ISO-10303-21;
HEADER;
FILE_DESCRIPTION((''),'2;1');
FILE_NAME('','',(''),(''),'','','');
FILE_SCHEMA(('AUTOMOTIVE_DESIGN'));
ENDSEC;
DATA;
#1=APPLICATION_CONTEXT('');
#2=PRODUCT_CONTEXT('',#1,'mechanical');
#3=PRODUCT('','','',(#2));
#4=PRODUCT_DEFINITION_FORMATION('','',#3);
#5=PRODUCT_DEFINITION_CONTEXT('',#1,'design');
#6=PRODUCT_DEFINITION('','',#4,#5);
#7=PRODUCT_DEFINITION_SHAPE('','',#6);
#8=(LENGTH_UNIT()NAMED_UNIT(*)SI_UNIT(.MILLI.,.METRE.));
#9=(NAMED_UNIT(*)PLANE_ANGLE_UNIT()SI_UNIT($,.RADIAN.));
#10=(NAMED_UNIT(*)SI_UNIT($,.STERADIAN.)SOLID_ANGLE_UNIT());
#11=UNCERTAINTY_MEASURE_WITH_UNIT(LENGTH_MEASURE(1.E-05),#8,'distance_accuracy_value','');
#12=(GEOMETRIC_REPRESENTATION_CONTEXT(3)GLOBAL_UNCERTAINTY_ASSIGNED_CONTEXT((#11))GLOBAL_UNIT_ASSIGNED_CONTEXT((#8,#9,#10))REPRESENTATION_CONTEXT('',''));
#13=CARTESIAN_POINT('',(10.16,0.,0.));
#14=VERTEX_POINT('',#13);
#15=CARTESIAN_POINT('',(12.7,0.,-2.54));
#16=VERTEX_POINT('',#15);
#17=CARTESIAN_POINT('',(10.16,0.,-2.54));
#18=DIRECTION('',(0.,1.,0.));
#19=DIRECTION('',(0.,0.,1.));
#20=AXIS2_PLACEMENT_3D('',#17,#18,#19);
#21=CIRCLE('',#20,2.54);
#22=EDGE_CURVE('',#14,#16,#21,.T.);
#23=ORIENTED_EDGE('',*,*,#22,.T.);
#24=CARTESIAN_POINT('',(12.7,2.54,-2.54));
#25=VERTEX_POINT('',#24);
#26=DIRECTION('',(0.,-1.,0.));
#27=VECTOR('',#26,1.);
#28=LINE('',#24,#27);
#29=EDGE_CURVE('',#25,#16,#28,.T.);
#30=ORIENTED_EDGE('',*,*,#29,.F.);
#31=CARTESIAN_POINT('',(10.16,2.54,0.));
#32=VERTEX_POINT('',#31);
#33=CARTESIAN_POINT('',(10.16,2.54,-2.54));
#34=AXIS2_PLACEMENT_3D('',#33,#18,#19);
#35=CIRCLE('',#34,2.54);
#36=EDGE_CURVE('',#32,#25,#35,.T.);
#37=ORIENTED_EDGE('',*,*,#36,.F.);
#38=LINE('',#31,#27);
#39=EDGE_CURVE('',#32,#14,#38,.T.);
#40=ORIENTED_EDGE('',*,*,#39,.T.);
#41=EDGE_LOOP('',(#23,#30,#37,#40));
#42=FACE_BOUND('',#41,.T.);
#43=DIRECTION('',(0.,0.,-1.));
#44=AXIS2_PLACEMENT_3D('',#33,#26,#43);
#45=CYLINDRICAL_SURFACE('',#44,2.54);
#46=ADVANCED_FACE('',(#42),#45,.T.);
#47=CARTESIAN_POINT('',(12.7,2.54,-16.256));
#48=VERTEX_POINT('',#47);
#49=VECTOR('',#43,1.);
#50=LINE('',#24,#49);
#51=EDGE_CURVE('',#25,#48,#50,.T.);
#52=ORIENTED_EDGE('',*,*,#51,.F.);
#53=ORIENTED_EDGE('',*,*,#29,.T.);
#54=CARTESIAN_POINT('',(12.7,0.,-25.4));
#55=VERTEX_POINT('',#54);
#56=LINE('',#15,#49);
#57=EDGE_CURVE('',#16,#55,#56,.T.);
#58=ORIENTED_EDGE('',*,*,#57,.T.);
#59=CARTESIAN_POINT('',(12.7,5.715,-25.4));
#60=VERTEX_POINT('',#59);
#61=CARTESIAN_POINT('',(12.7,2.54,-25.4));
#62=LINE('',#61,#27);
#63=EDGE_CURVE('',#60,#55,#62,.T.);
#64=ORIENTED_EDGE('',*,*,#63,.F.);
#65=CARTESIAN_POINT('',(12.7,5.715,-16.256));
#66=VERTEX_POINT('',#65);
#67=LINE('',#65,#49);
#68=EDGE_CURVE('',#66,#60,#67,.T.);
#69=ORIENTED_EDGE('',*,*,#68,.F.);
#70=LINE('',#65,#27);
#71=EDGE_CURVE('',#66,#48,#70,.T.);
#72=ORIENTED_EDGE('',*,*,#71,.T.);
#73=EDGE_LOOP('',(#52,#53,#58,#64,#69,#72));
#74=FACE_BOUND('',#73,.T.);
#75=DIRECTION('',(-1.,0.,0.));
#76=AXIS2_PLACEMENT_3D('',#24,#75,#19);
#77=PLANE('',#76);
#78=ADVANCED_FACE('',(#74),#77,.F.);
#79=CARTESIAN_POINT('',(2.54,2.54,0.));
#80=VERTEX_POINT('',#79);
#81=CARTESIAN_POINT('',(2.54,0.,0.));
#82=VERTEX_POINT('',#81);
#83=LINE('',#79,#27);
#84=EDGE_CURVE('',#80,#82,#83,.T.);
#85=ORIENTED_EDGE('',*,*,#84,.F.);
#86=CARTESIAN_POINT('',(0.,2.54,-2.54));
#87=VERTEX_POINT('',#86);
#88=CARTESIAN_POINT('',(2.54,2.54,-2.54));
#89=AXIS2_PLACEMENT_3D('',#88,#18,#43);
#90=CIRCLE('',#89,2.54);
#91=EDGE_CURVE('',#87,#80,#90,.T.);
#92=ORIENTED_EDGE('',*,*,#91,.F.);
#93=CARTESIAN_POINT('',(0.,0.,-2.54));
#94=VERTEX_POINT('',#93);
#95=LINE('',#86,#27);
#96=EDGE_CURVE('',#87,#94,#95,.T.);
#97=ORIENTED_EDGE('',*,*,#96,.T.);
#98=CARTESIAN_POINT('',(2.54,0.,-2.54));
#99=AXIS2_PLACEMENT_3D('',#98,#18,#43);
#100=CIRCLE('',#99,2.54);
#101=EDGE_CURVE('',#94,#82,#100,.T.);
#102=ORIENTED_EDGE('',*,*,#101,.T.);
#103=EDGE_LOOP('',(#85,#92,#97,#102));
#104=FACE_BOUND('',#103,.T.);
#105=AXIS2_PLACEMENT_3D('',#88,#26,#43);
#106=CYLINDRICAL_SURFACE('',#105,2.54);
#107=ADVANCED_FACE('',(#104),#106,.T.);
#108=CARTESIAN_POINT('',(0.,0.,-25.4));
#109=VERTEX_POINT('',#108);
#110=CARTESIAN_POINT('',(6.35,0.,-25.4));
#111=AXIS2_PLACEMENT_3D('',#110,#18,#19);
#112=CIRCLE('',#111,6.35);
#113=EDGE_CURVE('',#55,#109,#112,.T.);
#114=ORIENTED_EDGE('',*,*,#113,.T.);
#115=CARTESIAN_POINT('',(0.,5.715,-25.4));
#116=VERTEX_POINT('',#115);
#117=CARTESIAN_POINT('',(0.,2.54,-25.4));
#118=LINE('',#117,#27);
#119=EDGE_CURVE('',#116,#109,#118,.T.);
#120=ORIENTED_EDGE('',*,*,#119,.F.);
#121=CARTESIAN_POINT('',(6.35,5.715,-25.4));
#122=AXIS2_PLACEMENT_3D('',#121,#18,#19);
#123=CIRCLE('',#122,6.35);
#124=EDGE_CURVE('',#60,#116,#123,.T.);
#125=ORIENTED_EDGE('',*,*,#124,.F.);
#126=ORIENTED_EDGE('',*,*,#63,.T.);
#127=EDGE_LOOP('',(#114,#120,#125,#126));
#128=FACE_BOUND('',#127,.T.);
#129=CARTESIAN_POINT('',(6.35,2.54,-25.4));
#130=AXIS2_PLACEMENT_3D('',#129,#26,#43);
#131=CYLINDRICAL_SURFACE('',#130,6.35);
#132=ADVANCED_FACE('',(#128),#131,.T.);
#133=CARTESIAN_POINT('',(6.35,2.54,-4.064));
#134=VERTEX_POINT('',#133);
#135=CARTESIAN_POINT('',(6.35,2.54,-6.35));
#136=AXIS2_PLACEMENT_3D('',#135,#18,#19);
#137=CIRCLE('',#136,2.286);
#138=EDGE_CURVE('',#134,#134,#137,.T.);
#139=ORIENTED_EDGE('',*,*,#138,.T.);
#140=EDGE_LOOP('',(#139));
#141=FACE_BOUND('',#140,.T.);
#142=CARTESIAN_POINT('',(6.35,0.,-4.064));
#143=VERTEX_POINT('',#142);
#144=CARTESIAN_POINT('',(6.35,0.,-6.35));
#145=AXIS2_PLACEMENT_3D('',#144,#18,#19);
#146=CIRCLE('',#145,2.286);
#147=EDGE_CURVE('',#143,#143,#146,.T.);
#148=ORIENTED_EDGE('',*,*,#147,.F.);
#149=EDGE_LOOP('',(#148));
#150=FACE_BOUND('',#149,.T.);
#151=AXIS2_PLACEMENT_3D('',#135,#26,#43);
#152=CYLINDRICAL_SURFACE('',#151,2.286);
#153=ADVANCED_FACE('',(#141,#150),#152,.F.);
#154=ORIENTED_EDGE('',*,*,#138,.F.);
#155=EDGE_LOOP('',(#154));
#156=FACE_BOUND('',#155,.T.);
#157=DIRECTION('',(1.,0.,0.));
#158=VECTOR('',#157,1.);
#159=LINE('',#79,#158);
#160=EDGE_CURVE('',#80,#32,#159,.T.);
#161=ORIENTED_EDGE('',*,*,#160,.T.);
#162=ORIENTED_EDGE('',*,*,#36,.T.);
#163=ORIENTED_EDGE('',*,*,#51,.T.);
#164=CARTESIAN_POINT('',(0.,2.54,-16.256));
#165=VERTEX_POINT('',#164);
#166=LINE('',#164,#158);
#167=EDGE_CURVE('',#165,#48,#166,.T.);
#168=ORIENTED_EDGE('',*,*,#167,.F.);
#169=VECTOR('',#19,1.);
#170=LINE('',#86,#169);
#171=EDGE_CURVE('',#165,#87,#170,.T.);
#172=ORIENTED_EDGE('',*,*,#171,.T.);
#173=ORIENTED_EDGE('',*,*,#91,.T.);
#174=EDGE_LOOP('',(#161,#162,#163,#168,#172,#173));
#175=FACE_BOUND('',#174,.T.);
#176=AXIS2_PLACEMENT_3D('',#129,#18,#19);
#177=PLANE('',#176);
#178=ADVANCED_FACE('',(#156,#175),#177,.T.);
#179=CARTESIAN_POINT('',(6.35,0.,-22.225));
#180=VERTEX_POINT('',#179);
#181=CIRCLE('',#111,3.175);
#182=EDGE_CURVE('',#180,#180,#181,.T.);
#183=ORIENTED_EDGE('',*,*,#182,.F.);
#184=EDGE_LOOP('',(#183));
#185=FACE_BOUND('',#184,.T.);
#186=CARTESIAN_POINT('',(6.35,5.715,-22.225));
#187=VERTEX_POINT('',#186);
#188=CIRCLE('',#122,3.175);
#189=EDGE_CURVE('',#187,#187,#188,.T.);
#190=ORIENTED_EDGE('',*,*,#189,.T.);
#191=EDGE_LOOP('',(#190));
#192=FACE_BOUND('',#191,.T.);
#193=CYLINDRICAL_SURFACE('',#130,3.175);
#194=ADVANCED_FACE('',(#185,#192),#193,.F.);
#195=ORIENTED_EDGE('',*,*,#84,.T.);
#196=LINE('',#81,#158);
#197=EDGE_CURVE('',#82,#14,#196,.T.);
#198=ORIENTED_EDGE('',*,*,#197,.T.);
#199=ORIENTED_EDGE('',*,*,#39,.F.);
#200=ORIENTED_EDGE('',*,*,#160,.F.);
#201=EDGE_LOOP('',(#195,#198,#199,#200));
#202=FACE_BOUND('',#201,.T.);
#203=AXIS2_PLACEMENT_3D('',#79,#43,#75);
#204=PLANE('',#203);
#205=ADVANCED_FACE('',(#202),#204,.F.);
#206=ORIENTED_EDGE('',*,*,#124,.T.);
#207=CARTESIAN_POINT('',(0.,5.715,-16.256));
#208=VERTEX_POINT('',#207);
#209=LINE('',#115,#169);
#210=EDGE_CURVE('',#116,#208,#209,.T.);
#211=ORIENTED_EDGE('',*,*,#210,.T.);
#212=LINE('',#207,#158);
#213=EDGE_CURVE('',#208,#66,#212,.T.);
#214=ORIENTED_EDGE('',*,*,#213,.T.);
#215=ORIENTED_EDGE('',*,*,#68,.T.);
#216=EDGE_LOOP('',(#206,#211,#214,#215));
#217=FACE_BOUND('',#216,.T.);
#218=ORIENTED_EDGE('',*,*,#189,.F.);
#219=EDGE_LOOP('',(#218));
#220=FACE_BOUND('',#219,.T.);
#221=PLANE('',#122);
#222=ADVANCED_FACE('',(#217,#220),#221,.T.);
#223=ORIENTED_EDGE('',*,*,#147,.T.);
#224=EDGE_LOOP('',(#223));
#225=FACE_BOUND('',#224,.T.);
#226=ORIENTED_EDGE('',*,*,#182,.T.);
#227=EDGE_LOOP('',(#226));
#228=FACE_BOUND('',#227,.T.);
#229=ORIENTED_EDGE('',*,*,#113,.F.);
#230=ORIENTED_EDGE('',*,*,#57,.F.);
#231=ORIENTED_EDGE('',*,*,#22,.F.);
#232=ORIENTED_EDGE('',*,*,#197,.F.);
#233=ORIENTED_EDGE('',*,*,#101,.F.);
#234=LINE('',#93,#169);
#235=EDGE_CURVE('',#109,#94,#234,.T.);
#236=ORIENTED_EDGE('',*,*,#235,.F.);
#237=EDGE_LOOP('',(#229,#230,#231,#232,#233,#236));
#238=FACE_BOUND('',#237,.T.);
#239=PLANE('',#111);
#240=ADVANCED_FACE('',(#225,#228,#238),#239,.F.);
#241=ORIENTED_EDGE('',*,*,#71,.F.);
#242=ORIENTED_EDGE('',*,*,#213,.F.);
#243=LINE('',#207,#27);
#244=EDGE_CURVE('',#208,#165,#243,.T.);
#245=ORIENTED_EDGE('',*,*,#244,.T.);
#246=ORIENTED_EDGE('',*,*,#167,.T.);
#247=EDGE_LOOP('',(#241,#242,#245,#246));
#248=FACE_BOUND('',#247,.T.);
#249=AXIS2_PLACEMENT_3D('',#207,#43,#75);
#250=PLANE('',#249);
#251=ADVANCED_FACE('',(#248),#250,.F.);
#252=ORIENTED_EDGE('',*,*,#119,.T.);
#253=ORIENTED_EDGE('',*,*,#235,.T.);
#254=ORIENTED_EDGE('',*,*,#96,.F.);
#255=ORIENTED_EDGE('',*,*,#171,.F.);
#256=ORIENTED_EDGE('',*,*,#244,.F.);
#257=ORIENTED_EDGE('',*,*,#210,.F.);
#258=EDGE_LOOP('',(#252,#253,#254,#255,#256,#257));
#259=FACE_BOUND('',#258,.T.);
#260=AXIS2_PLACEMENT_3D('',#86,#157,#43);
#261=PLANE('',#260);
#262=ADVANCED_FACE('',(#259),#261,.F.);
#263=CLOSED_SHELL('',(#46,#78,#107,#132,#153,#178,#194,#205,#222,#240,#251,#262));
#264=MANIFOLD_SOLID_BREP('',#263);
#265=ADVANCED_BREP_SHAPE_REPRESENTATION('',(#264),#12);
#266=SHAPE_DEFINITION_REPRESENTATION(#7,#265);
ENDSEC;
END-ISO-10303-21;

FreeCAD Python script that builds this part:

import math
import FreeCAD as App
import Part
import Sketcher

V = App.Vector
Q = App.Units.Quantity

doc = App.newDocument("Part")
body = doc.addObject("PartDesign::Body", "Body")

sketch1 = doc.addObject("Sketcher::SketchObject", "Sketch")
body.addObject(sketch1)
sketch1.AttachmentSupport = (doc.XZ_Plane, [""])
sketch1.MapMode = "FlatFace"
sketch1.addGeometry([
    Part.LineSegment(V(2.5, 0, 0), V(10.2, 0, 0)),
    Part.ArcOfCircle(Part.Circle(V(10.2, -2.5, 0), V(0, 0, 1), 2.5), math.radians(0), math.radians(90)),
    Part.LineSegment(V(12.7, -2.5, 0), V(12.7, -25.4, 0)),
    Part.ArcOfCircle(Part.Circle(V(6.3, -25.4, 0), V(0, 0, 1), 6.3), math.radians(180), math.radians(360)),
    Part.LineSegment(V(0, -25.4, 0), V(0, -2.5, 0)),
    Part.ArcOfCircle(Part.Circle(V(2.5, -2.5, 0), V(0, 0, 1), 2.5), math.radians(90), math.radians(180)),
    Part.Circle(V(6.3, -6.3, 0), V(0, 0, 1), 2.3),
    Part.Circle(V(6.3, -25.4, 0), V(0, 0, 1), 3.2),
], False)
sketch1.addConstraint([
    Sketcher.Constraint("Tangent", 0, 2, 1, 2),
    Sketcher.Constraint("Tangent", 1, 1, 2, 1),
    Sketcher.Constraint("Tangent", 2, 2, 3, 2),
    Sketcher.Constraint("Tangent", 3, 1, 4, 1),
    Sketcher.Constraint("Tangent", 4, 2, 5, 2),
    Sketcher.Constraint("Tangent", 5, 1, 0, 1),
    Sketcher.Constraint("Horizontal", 0),
    Sketcher.Constraint("Vertical", 2),
    Sketcher.Constraint("Vertical", 4),
    Sketcher.Constraint("Coincident", 7, 3, 3, 3),
    Sketcher.Constraint("Equal", 1, 5),
    Sketcher.Constraint("PointOnObject", 0, 2, -1),
    Sketcher.Constraint("PointOnObject", 3, 1, -2),
    Sketcher.Constraint("Vertical", 3, 3, 6, 3),
    Sketcher.Constraint("Radius", 1, Q("0.1 in")),
    Sketcher.Constraint("Diameter", 6, Q("0.18 in")),
    Sketcher.Constraint("Diameter", 7, Q("0.25 in")),
    Sketcher.Constraint("Radius", 3, Q("0.25 in")),
    Sketcher.Constraint("DistanceY", 2, 2, 2, 1, Q("0.9 in")),
    Sketcher.Constraint("DistanceY", 6, 3, -1, 1, Q("0.25 in")),
])
pad1 = doc.addObject("PartDesign::Pad", "Pad")
body.addObject(pad1)
pad1.Profile = sketch1
pad1.Length = Q("0.1 in")
pad1.Reversed = True

sketch2 = doc.addObject("Sketcher::SketchObject", "Sketch001")
body.addObject(sketch2)
sketch2.AttachmentSupport = (doc.XZ_Plane, [""])
sketch2.MapMode = "FlatFace"
sketch2.AttachmentOffset = App.Placement(V(0, 0, -0.1 * 25.4), App.Rotation())
sketch2.addGeometry([
    Part.LineSegment(V(0, -25.4, 0), V(0, -16.3, 0)),
    Part.LineSegment(V(0, -16.3, 0), V(12.7, -16.3, 0)),
    Part.LineSegment(V(12.7, -16.3, 0), V(12.7, -25.4, 0)),
    Part.ArcOfCircle(Part.Circle(V(6.3, -25.4, 0), V(0, 0, 1), 6.3), math.radians(180), math.radians(360)),
    Part.Circle(V(6.3, -25.4, 0), V(0, 0, 1), 3.2),
], False)
sketch2.addConstraint([
    Sketcher.Constraint("Coincident", 0, 2, 1, 1),
    Sketcher.Constraint("Coincident", 1, 2, 2, 1),
    Sketcher.Constraint("Tangent", 2, 2, 3, 2),
    Sketcher.Constraint("Tangent", 3, 1, 0, 1),
    Sketcher.Constraint("Vertical", 0),
    Sketcher.Constraint("Horizontal", 1),
    Sketcher.Constraint("Vertical", 2),
    Sketcher.Constraint("Coincident", 4, 3, 3, 3),
    Sketcher.Constraint("PointOnObject", 0, 2, -2),
    Sketcher.Constraint("Diameter", 4, Q("0.25 in")),
    Sketcher.Constraint("Radius", 3, Q("0.25 in")),
    Sketcher.Constraint("DistanceY", 3, 3, -1, 1, Q("1 in")),
    Sketcher.Constraint("DistanceY", 0, 1, 0, 2, Q("0.36 in")),
])
pad2 = doc.addObject("PartDesign::Pad", "Pad001")
body.addObject(pad2)
pad2.Profile = sketch2
pad2.Length = Q("0.125 in")
pad2.Reversed = True

doc.recompute()
